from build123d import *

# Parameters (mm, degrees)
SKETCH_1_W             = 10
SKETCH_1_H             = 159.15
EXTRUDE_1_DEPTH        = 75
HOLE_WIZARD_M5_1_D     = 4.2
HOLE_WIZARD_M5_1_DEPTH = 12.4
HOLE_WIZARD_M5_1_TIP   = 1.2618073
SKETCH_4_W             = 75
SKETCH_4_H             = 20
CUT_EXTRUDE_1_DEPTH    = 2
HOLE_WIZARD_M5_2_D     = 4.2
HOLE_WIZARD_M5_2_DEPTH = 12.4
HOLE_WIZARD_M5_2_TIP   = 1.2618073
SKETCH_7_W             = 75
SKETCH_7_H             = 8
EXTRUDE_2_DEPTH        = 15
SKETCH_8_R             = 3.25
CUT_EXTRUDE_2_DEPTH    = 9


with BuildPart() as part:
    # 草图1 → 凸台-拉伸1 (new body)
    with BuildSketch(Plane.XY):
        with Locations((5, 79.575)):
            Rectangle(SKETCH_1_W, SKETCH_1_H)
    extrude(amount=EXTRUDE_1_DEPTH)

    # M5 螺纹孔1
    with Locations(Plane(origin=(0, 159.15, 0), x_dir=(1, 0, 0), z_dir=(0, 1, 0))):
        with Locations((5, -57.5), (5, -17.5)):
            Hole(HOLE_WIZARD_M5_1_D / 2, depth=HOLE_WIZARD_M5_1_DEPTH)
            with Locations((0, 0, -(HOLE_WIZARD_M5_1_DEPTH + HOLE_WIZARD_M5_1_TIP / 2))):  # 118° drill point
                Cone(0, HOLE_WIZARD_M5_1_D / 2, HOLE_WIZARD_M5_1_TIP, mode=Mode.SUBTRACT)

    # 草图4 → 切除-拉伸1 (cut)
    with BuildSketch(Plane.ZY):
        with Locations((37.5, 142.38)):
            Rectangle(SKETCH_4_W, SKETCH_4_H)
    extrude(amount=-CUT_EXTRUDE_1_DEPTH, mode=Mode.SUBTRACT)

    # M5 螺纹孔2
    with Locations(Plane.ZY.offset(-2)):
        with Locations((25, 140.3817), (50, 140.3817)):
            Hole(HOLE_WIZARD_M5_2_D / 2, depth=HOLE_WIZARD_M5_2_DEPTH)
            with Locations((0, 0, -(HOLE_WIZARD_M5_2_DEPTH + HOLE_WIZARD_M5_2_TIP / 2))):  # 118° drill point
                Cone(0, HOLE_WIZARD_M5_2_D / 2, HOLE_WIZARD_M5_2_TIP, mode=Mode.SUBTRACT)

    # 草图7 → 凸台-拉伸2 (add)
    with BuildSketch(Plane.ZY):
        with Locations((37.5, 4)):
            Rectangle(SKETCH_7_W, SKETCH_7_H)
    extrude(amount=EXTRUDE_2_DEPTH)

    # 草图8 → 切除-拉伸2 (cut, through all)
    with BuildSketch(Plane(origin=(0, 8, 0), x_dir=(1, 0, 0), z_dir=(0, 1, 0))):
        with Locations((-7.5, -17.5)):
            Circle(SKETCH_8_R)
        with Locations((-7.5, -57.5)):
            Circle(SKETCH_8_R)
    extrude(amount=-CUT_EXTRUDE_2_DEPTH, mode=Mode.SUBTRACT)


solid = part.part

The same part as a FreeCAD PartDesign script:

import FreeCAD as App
import Part
import Sketcher
from FreeCAD import Vector
Q = App.Units.Quantity


def add_polygon(sketch, points):
    """Adds a closed chain of lines whose ends are joined by coincident constraints."""
    first, n = sketch.GeometryCount, len(points)
    for a, b in zip(points, points[1:] + points[:1]):
        sketch.addGeometry(Part.LineSegment(App.Vector(*a, 0), App.Vector(*b, 0)), False)
    for i in range(n):
        sketch.addConstraint(Sketcher.Constraint("Coincident", first + i, 2, first + (i + 1) % n, 1))

doc = App.newDocument("Part")
body = doc.addObject("PartDesign::Body", "Body")

# Sketch on XY plane
sketch1 = body.newObject("Sketcher::SketchObject", "Sketch")
sketch1.AttachmentSupport = (doc.getObject("XY_Plane"), [""])
sketch1.MapMode = "FlatFace"
add_polygon(sketch1, [(0, 159), (0, 0), (10, 0), (10, 159)])  # lines 0-3
sketch1.addConstraint(Sketcher.Constraint("Vertical", 0))
sketch1.addConstraint(Sketcher.Constraint("Horizontal", 1))
sketch1.addConstraint(Sketcher.Constraint("Vertical", 2))
sketch1.addConstraint(Sketcher.Constraint("Horizontal", 3))
sketch1.addConstraint(Sketcher.Constraint("Coincident", 0, 2, -1, 1))
sketch1.addConstraint(Sketcher.Constraint("DistanceX", 1, 1, 1, 2, Q("10 mm")))
sketch1.addConstraint(Sketcher.Constraint("DistanceY", 0, 2, 0, 1, Q("159.15 mm")))
pad1 = body.newObject("PartDesign::Pad", "Pad")
pad1.Profile = sketch1
pad1.Length = 75

# Sketch on XZ plane
sketch2 = body.newObject("Sketcher::SketchObject", "Sketch001")
sketch2.AttachmentSupport = (doc.getObject("XZ_Plane"), [""])
sketch2.MapMode = "FlatFace"
sketch2.AttachmentOffset = App.Placement(Vector(0, 0, -159.15), App.Rotation())
sketch2.addGeometry(Part.Circle(Vector(5, 57.5, 0), Vector(0, 0, 1), 2.1), False)
sketch2.addGeometry(Part.Circle(Vector(5, 17.5, 0), Vector(0, 0, 1), 2.1), False)
sketch2.addConstraint(Sketcher.Constraint("Equal", 0, 1))
sketch2.addConstraint(Sketcher.Constraint("Vertical", 0, 3, 1, 3))
sketch2.addConstraint(Sketcher.Constraint("Diameter", 0, Q("4.2 mm")))
sketch2.addConstraint(Sketcher.Constraint("DistanceX", -1, 1, 0, 3, Q("5 mm")))
sketch2.addConstraint(Sketcher.Constraint("DistanceY", 1, 3, 0, 3, Q("40 mm")))
sketch2.addConstraint(Sketcher.Constraint("DistanceY", -1, 1, 0, 3, Q("57.5 mm")))
doc.recompute()
hole = body.newObject("PartDesign::Hole", "Hole")
hole.Profile = sketch2
hole.ThreadType = "None"
hole.Diameter = 4.2
hole.DepthType = "Dimension"
hole.Depth = 12.4
hole.DrillPoint = "Angled"
hole.DrillPointAngle = 118
hole.Reversed = True

# Sketch on YZ plane
sketch3 = body.newObject("Sketcher::SketchObject", "Sketch002")
sketch3.AttachmentSupport = (doc.getObject("YZ_Plane"), [""])
sketch3.MapMode = "FlatFace"
add_polygon(sketch3, [(152, 0), (132, 0), (132, 75), (152, 75)])  # lines 0-3
sketch3.addConstraint(Sketcher.Constraint("Horizontal", 0))
sketch3.addConstraint(Sketcher.Constraint("Vertical", 1))
sketch3.addConstraint(Sketcher.Constraint("Horizontal", 2))
sketch3.addConstraint(Sketcher.Constraint("Vertical", 3))
sketch3.addConstraint(Sketcher.Constraint("PointOnObject", 0, 2, -1))
sketch3.addConstraint(Sketcher.Constraint("DistanceX", 0, 2, 0, 1, Q("20 mm")))
sketch3.addConstraint(Sketcher.Constraint("DistanceY", 1, 1, 1, 2, Q("75 mm")))
sketch3.addConstraint(Sketcher.Constraint("DistanceX", -1, 1, 0, 2, Q("132.38 mm")))
pocket1 = body.newObject("PartDesign::Pocket", "Pocket")
pocket1.Profile = sketch3
pocket1.Length = 2
pocket1.Reversed = True

# Sketch on YZ plane
sketch4 = body.newObject("Sketcher::SketchObject", "Sketch003")
sketch4.AttachmentSupport = (doc.getObject("YZ_Plane"), [""])
sketch4.MapMode = "FlatFace"
sketch4.AttachmentOffset = App.Placement(Vector(0, 0, 2), App.Rotation())
sketch4.addGeometry(Part.Circle(Vector(140.4, 25, 0), Vector(0, 0, 1), 2.1), False)
sketch4.addGeometry(Part.Circle(Vector(140.4, 50, 0), Vector(0, 0, 1), 2.1), False)
sketch4.addConstraint(Sketcher.Constraint("Equal", 0, 1))
sketch4.addConstraint(Sketcher.Constraint("Vertical", 0, 3, 1, 3))
sketch4.addConstraint(Sketcher.Constraint("Diameter", 0, Q("4.2 mm")))
sketch4.addConstraint(Sketcher.Constraint("DistanceY", -1, 1, 0, 3, Q("25 mm")))
sketch4.addConstraint(Sketcher.Constraint("DistanceY", -1, 1, 1, 3, Q("50 mm")))
sketch4.addConstraint(Sketcher.Constraint("DistanceX", -1, 1, 0, 3, Q("140.3817 mm")))
doc.recompute()
hole2 = body.newObject("PartDesign::Hole", "Hole001")
hole2.Profile = sketch4
hole2.ThreadType = "None"
hole2.Diameter = 4.2
hole2.DepthType = "Dimension"
hole2.Depth = 12.4
hole2.DrillPoint = "Angled"
hole2.DrillPointAngle = 118
hole2.Reversed = True

# Sketch on YZ plane
sketch5 = body.newObject("Sketcher::SketchObject", "Sketch004")
sketch5.AttachmentSupport = (doc.getObject("YZ_Plane"), [""])
sketch5.MapMode = "FlatFace"
add_polygon(sketch5, [(8, 0), (0, 0), (0, 75), (8, 75)])  # lines 0-3
sketch5.addConstraint(Sketcher.Constraint("Horizontal", 0))
sketch5.addConstraint(Sketcher.Constraint("Vertical", 1))
sketch5.addConstraint(Sketcher.Constraint("Horizontal", 2))
sketch5.addConstraint(Sketcher.Constraint("Vertical", 3))
sketch5.addConstraint(Sketcher.Constraint("Coincident", 0, 2, -1, 1))
sketch5.addConstraint(Sketcher.Constraint("DistanceX", 0, 2, 0, 1, Q("8 mm")))
sketch5.addConstraint(Sketcher.Constraint("DistanceY", 1, 1, 1, 2, Q("75 mm")))
pad2 = body.newObject("PartDesign::Pad", "Pad001")
pad2.Profile = sketch5
pad2.Length = 15
pad2.Reversed = True

# Sketch on XZ plane
sketch6 = body.newObject("Sketcher::SketchObject", "Sketch005")
sketch6.AttachmentSupport = (doc.getObject("XZ_Plane"), [""])
sketch6.MapMode = "FlatFace"
sketch6.AttachmentOffset = App.Placement(Vector(0, 0, -8), App.Rotation())
sketch6.addGeometry(Part.Circle(Vector(-7.5, 17.5, 0), Vector(0, 0, 1), 3.2), False)
sketch6.addGeometry(Part.Circle(Vector(-7.5, 57.5, 0), Vector(0, 0, 1), 3.2), False)
sketch6.addConstraint(Sketcher.Constraint("Equal", 0, 1))
sketch6.addConstraint(Sketcher.Constraint("Vertical", 0, 3, 1, 3))
sketch6.addConstraint(Sketcher.Constraint("Diameter", 0, Q("6.5 mm")))
sketch6.addConstraint(Sketcher.Constraint("DistanceY", 0, 3, 1, 3, Q("40 mm")))
sketch6.addConstraint(Sketcher.Constraint("DistanceX", 0, 3, -1, 1, Q("7.5 mm")))
sketch6.addConstraint(Sketcher.Constraint("DistanceY", -1, 1, 0, 3, Q("17.5 mm")))
pocket2 = body.newObject("PartDesign::Pocket", "Pocket001")
pocket2.Profile = sketch6
pocket2.Type = "ThroughAll"
pocket2.Reversed = True

doc.recompute()
